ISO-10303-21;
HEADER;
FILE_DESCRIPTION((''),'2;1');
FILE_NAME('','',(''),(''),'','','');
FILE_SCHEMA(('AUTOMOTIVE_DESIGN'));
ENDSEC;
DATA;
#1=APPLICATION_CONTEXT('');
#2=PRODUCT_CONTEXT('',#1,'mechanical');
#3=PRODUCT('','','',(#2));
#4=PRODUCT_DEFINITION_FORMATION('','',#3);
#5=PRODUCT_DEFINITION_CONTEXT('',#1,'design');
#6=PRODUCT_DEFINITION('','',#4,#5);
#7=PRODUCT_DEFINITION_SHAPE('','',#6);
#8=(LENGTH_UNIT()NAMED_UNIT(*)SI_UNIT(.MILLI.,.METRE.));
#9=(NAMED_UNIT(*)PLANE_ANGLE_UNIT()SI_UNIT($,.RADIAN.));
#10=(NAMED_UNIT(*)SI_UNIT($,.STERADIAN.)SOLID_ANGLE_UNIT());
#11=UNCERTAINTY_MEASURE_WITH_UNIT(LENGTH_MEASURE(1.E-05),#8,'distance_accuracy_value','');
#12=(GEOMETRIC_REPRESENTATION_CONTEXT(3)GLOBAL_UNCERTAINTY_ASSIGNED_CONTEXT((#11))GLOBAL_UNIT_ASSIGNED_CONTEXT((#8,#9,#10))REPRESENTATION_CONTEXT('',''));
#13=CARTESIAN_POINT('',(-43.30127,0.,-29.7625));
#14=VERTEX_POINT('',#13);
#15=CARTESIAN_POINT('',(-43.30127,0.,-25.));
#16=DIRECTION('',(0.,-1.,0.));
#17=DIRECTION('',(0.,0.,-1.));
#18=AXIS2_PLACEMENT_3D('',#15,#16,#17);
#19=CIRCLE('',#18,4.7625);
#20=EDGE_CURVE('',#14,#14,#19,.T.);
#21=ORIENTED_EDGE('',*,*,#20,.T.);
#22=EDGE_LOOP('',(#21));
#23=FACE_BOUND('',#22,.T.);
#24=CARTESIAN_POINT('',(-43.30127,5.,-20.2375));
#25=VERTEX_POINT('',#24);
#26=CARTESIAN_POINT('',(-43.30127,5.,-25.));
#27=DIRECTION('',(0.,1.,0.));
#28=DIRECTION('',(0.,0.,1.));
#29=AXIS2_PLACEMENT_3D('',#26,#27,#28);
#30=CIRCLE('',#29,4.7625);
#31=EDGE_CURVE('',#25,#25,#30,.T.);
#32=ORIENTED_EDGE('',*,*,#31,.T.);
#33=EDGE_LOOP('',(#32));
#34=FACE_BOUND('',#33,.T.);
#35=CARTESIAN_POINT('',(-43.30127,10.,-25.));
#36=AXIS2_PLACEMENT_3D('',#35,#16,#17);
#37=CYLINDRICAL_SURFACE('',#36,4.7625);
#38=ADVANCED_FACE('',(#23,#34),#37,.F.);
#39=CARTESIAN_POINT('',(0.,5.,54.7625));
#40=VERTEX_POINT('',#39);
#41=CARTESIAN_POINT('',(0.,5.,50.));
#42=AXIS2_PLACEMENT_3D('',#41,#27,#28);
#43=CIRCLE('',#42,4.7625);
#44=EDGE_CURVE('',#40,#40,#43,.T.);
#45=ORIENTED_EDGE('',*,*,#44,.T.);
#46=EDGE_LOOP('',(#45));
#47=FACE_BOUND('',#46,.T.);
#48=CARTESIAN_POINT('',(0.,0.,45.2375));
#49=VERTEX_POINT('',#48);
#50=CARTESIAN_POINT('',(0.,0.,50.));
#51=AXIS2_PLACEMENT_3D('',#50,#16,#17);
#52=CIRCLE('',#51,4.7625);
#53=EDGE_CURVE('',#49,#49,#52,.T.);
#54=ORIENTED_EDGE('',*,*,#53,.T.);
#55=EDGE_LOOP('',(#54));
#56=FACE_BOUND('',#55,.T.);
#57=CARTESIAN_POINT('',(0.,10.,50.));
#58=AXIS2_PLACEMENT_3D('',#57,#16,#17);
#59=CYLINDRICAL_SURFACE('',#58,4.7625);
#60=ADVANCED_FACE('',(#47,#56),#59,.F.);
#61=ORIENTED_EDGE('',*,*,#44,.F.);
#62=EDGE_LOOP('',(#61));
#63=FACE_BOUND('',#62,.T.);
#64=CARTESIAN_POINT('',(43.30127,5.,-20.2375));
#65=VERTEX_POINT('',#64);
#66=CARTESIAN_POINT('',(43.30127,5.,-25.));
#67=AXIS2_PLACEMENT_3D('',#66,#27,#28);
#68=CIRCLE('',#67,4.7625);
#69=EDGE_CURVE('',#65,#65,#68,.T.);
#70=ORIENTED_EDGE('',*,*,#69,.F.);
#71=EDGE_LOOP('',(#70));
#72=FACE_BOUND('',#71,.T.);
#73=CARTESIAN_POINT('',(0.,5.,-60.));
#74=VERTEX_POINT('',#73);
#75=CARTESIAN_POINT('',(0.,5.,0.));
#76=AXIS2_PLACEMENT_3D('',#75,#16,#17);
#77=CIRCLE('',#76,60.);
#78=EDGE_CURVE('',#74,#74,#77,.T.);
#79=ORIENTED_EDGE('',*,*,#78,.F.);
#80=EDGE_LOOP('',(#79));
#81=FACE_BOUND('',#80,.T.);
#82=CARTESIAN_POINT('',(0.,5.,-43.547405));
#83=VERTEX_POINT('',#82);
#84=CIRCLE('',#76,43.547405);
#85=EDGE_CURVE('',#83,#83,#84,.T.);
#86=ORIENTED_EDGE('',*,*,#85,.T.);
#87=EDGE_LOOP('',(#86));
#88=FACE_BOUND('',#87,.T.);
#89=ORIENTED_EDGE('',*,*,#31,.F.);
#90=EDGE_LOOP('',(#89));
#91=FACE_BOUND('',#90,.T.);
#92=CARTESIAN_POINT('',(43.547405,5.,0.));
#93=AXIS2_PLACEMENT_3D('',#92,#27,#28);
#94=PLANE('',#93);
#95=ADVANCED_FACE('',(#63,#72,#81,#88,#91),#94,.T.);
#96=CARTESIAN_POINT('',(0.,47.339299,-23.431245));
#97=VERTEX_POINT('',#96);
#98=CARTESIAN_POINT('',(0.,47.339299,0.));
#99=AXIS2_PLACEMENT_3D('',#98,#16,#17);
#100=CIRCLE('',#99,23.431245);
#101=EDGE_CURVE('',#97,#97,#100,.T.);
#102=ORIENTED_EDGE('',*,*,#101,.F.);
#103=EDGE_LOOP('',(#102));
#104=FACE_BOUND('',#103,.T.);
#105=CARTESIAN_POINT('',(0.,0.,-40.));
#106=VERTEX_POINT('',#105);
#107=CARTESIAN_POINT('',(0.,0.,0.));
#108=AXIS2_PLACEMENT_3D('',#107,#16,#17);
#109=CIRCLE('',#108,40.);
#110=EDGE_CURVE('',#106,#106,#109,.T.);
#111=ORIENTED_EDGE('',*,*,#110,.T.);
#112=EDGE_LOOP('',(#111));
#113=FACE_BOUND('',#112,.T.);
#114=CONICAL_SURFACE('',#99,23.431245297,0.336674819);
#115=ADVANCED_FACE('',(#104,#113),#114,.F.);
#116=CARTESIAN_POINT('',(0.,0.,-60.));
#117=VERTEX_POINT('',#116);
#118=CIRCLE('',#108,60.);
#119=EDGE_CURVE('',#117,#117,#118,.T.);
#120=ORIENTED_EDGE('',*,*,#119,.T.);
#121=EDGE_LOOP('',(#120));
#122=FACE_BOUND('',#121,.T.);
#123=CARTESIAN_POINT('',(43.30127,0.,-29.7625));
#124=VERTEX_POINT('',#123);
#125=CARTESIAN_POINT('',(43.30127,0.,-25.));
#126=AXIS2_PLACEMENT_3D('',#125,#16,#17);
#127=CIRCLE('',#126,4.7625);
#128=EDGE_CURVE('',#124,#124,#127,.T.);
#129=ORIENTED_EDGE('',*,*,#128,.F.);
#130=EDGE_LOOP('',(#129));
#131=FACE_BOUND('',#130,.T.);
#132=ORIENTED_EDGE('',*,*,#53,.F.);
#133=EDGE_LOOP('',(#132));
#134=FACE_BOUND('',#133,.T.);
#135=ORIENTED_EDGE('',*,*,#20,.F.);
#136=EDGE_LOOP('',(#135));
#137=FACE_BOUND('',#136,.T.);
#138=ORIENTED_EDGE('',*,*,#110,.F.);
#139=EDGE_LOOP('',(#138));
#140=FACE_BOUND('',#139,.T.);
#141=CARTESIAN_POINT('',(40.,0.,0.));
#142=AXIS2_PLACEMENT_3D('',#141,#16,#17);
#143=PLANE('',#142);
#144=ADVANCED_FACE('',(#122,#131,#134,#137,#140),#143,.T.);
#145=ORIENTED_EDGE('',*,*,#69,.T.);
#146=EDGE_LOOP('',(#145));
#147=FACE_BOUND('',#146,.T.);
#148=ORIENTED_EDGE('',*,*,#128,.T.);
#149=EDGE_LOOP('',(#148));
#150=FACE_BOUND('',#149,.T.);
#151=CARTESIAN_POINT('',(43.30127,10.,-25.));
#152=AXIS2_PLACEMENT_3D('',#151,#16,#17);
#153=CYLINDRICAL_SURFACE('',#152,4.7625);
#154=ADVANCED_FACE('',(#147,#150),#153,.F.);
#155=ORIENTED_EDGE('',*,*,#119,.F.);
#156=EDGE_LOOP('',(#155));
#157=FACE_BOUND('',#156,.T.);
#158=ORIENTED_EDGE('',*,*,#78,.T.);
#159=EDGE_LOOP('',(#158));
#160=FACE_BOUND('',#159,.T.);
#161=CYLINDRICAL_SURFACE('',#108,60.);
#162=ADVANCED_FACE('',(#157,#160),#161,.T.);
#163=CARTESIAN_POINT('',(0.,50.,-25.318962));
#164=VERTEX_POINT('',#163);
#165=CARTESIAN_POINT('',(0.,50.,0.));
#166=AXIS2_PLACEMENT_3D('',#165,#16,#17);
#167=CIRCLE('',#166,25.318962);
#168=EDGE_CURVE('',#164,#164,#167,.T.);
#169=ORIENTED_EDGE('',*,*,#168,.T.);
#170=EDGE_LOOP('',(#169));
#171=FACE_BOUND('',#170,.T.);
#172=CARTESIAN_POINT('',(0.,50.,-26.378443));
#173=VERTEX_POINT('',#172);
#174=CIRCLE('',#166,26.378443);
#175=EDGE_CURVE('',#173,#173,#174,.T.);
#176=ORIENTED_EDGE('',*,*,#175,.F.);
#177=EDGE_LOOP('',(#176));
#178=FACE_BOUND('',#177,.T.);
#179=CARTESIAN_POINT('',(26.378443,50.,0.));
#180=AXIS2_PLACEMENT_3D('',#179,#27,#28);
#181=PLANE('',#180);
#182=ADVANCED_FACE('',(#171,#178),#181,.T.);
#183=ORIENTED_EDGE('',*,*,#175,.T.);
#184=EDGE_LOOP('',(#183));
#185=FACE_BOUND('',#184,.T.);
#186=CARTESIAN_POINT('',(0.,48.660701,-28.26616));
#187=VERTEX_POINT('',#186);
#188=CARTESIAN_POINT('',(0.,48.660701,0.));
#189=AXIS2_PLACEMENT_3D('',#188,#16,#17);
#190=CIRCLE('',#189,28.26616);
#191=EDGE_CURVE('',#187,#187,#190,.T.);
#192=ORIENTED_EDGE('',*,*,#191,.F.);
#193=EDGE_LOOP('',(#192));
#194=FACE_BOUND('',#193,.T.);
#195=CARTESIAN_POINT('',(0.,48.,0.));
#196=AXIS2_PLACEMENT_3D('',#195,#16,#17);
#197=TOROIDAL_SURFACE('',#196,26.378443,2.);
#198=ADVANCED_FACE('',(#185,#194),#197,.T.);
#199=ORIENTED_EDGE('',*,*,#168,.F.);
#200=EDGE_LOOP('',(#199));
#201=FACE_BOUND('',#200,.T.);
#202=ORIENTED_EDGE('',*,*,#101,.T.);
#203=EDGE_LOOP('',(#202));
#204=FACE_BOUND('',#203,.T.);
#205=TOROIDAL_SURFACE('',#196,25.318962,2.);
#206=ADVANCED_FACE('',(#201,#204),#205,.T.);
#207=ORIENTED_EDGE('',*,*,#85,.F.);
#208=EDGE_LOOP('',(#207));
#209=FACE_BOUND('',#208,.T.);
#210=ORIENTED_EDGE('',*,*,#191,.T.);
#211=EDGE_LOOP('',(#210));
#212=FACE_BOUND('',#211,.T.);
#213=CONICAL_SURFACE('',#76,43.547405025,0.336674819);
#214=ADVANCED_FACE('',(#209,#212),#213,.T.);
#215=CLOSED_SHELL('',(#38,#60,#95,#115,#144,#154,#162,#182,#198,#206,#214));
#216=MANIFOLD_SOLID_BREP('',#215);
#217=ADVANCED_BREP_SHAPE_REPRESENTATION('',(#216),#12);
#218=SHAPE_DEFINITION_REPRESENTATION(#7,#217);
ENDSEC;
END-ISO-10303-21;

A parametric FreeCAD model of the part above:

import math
import FreeCAD as App
import Part
import Sketcher

V = App.Vector
Q = App.Units.Quantity

doc = App.newDocument("Part")
body = doc.addObject("PartDesign::Body", "Body")

sketch1 = body.newObject("Sketcher::SketchObject", "Sketch")
sketch1.AttachmentSupport = (doc.getObject("XY_Plane"), [""])
sketch1.MapMode = "FlatFace"
sketch1.addGeometry(Part.LineSegment(V(40, 0, 0), V(60, 0, 0)), False)
sketch1.addGeometry(Part.LineSegment(V(60, 0, 0), V(60, 5, 0)), False)
sketch1.addGeometry(Part.LineSegment(V(60, 5, 0), V(43.5, 5, 0)), False)
sketch1.addGeometry(Part.LineSegment(V(43.5, 5, 0), V(28.3, 48.7, 0)), False)
sketch1.addGeometry(Part.ArcOfCircle(Part.Circle(V(26.4, 48, 0), V(0, 0, 1), 2), math.radians(19), math.radians(90)), False)
sketch1.addGeometry(Part.LineSegment(V(26.4, 50, 0), V(25.3, 50, 0)), False)
sketch1.addGeometry(Part.ArcOfCircle(Part.Circle(V(25.3, 48, 0), V(0, 0, 1), 2), math.radians(90), math.radians(199)), False)
sketch1.addGeometry(Part.LineSegment(V(23.4, 47.3, 0), V(40, 0, 0)), False)
sketch1.addConstraint(Sketcher.Constraint("Coincident", 0, 2, 1, 1))
sketch1.addConstraint(Sketcher.Constraint("Coincident", 1, 2, 2, 1))
sketch1.addConstraint(Sketcher.Constraint("Coincident", 2, 2, 3, 1))
sketch1.addConstraint(Sketcher.Constraint("Tangent", 3, 2, 4, 1))
sketch1.addConstraint(Sketcher.Constraint("Tangent", 4, 2, 5, 1))
sketch1.addConstraint(Sketcher.Constraint("Tangent", 5, 2, 6, 1))
sketch1.addConstraint(Sketcher.Constraint("Tangent", 6, 2, 7, 1))
sketch1.addConstraint(Sketcher.Constraint("Coincident", 7, 2, 0, 1))
sketch1.addConstraint(Sketcher.Constraint("Horizontal", 0))
sketch1.addConstraint(Sketcher.Constraint("Vertical", 1))
sketch1.addConstraint(Sketcher.Constraint("Horizontal", 2))
sketch1.addConstraint(Sketcher.Constraint("Horizontal", 5))
sketch1.addConstraint(Sketcher.Constraint("Equal", 4, 6))
sketch1.addConstraint(Sketcher.Constraint("PointOnObject", 0, 2, -1))
sketch1.addConstraint(Sketcher.Constraint("Parallel", 3, 7))
sketch1.addConstraint(Sketcher.Constraint("Radius", 4, Q("2 mm")))
sketch1.addConstraint(Sketcher.Constraint("DistanceX", 0, 1, 0, 2, Q("20 mm")))
sketch1.addConstraint(Sketcher.Constraint("DistanceY", 1, 1, 1, 2, Q("5 mm")))
sketch1.addConstraint(Sketcher.Constraint("DistanceY", -1, 1, 4, 3, Q("48 mm")))
sketch1.addConstraint(Sketcher.Constraint("DistanceX", -1, 1, 0, 2, Q("60 mm")))
sketch1.addConstraint(Sketcher.Constraint("DistanceX", 5, 2, 5, 1, Q("1.059481 mm")))
sketch1.addConstraint(Sketcher.Constraint("DistanceY", -1, 1, 3, 2, Q("48.660701 mm")))
revolution = body.newObject("PartDesign::Revolution", "Revolution")
revolution.Profile = sketch1
revolution.ReferenceAxis = (sketch1, ["V_Axis"])
revolution.Angle = 360

sketch2 = body.newObject("Sketcher::SketchObject", "Sketch001")
sketch2.AttachmentSupport = (doc.getObject("XZ_Plane"), [""])
sketch2.MapMode = "FlatFace"
sketch2.addGeometry(Part.Circle(V(0, 50, 0), V(0, 0, 1), 4.8), False)
sketch2.addGeometry(Part.Circle(V(43.3, -25, 0), V(0, 0, 1), 4.8), False)
sketch2.addGeometry(Part.Circle(V(-43.3, -25, 0), V(0, 0, 1), 4.8), False)
sketch2.addConstraint(Sketcher.Constraint("Equal", 0, 1))
sketch2.addConstraint(Sketcher.Constraint("Equal", 1, 2))
sketch2.addConstraint(Sketcher.Constraint("Symmetric", 1, 3, 2, 3, -2))
sketch2.addConstraint(Sketcher.Constraint("PointOnObject", 0, 3, -2))
sketch2.addConstraint(Sketcher.Constraint("Diameter", 0, Q("9.525 mm")))
sketch2.addConstraint(Sketcher.Constraint("DistanceY", -1, 1, 0, 3, Q("50 mm")))
sketch2.addConstraint(Sketcher.Constraint("DistanceY", 1, 3, -1, 1, Q("25 mm")))
sketch2.addConstraint(Sketcher.Constraint("DistanceX", -1, 1, 1, 3, Q("43.30127 mm")))
pocket1 = body.newObject("PartDesign::Pocket", "Pocket")
pocket1.Profile = sketch2
pocket1.Length = 10

doc.recompute()
